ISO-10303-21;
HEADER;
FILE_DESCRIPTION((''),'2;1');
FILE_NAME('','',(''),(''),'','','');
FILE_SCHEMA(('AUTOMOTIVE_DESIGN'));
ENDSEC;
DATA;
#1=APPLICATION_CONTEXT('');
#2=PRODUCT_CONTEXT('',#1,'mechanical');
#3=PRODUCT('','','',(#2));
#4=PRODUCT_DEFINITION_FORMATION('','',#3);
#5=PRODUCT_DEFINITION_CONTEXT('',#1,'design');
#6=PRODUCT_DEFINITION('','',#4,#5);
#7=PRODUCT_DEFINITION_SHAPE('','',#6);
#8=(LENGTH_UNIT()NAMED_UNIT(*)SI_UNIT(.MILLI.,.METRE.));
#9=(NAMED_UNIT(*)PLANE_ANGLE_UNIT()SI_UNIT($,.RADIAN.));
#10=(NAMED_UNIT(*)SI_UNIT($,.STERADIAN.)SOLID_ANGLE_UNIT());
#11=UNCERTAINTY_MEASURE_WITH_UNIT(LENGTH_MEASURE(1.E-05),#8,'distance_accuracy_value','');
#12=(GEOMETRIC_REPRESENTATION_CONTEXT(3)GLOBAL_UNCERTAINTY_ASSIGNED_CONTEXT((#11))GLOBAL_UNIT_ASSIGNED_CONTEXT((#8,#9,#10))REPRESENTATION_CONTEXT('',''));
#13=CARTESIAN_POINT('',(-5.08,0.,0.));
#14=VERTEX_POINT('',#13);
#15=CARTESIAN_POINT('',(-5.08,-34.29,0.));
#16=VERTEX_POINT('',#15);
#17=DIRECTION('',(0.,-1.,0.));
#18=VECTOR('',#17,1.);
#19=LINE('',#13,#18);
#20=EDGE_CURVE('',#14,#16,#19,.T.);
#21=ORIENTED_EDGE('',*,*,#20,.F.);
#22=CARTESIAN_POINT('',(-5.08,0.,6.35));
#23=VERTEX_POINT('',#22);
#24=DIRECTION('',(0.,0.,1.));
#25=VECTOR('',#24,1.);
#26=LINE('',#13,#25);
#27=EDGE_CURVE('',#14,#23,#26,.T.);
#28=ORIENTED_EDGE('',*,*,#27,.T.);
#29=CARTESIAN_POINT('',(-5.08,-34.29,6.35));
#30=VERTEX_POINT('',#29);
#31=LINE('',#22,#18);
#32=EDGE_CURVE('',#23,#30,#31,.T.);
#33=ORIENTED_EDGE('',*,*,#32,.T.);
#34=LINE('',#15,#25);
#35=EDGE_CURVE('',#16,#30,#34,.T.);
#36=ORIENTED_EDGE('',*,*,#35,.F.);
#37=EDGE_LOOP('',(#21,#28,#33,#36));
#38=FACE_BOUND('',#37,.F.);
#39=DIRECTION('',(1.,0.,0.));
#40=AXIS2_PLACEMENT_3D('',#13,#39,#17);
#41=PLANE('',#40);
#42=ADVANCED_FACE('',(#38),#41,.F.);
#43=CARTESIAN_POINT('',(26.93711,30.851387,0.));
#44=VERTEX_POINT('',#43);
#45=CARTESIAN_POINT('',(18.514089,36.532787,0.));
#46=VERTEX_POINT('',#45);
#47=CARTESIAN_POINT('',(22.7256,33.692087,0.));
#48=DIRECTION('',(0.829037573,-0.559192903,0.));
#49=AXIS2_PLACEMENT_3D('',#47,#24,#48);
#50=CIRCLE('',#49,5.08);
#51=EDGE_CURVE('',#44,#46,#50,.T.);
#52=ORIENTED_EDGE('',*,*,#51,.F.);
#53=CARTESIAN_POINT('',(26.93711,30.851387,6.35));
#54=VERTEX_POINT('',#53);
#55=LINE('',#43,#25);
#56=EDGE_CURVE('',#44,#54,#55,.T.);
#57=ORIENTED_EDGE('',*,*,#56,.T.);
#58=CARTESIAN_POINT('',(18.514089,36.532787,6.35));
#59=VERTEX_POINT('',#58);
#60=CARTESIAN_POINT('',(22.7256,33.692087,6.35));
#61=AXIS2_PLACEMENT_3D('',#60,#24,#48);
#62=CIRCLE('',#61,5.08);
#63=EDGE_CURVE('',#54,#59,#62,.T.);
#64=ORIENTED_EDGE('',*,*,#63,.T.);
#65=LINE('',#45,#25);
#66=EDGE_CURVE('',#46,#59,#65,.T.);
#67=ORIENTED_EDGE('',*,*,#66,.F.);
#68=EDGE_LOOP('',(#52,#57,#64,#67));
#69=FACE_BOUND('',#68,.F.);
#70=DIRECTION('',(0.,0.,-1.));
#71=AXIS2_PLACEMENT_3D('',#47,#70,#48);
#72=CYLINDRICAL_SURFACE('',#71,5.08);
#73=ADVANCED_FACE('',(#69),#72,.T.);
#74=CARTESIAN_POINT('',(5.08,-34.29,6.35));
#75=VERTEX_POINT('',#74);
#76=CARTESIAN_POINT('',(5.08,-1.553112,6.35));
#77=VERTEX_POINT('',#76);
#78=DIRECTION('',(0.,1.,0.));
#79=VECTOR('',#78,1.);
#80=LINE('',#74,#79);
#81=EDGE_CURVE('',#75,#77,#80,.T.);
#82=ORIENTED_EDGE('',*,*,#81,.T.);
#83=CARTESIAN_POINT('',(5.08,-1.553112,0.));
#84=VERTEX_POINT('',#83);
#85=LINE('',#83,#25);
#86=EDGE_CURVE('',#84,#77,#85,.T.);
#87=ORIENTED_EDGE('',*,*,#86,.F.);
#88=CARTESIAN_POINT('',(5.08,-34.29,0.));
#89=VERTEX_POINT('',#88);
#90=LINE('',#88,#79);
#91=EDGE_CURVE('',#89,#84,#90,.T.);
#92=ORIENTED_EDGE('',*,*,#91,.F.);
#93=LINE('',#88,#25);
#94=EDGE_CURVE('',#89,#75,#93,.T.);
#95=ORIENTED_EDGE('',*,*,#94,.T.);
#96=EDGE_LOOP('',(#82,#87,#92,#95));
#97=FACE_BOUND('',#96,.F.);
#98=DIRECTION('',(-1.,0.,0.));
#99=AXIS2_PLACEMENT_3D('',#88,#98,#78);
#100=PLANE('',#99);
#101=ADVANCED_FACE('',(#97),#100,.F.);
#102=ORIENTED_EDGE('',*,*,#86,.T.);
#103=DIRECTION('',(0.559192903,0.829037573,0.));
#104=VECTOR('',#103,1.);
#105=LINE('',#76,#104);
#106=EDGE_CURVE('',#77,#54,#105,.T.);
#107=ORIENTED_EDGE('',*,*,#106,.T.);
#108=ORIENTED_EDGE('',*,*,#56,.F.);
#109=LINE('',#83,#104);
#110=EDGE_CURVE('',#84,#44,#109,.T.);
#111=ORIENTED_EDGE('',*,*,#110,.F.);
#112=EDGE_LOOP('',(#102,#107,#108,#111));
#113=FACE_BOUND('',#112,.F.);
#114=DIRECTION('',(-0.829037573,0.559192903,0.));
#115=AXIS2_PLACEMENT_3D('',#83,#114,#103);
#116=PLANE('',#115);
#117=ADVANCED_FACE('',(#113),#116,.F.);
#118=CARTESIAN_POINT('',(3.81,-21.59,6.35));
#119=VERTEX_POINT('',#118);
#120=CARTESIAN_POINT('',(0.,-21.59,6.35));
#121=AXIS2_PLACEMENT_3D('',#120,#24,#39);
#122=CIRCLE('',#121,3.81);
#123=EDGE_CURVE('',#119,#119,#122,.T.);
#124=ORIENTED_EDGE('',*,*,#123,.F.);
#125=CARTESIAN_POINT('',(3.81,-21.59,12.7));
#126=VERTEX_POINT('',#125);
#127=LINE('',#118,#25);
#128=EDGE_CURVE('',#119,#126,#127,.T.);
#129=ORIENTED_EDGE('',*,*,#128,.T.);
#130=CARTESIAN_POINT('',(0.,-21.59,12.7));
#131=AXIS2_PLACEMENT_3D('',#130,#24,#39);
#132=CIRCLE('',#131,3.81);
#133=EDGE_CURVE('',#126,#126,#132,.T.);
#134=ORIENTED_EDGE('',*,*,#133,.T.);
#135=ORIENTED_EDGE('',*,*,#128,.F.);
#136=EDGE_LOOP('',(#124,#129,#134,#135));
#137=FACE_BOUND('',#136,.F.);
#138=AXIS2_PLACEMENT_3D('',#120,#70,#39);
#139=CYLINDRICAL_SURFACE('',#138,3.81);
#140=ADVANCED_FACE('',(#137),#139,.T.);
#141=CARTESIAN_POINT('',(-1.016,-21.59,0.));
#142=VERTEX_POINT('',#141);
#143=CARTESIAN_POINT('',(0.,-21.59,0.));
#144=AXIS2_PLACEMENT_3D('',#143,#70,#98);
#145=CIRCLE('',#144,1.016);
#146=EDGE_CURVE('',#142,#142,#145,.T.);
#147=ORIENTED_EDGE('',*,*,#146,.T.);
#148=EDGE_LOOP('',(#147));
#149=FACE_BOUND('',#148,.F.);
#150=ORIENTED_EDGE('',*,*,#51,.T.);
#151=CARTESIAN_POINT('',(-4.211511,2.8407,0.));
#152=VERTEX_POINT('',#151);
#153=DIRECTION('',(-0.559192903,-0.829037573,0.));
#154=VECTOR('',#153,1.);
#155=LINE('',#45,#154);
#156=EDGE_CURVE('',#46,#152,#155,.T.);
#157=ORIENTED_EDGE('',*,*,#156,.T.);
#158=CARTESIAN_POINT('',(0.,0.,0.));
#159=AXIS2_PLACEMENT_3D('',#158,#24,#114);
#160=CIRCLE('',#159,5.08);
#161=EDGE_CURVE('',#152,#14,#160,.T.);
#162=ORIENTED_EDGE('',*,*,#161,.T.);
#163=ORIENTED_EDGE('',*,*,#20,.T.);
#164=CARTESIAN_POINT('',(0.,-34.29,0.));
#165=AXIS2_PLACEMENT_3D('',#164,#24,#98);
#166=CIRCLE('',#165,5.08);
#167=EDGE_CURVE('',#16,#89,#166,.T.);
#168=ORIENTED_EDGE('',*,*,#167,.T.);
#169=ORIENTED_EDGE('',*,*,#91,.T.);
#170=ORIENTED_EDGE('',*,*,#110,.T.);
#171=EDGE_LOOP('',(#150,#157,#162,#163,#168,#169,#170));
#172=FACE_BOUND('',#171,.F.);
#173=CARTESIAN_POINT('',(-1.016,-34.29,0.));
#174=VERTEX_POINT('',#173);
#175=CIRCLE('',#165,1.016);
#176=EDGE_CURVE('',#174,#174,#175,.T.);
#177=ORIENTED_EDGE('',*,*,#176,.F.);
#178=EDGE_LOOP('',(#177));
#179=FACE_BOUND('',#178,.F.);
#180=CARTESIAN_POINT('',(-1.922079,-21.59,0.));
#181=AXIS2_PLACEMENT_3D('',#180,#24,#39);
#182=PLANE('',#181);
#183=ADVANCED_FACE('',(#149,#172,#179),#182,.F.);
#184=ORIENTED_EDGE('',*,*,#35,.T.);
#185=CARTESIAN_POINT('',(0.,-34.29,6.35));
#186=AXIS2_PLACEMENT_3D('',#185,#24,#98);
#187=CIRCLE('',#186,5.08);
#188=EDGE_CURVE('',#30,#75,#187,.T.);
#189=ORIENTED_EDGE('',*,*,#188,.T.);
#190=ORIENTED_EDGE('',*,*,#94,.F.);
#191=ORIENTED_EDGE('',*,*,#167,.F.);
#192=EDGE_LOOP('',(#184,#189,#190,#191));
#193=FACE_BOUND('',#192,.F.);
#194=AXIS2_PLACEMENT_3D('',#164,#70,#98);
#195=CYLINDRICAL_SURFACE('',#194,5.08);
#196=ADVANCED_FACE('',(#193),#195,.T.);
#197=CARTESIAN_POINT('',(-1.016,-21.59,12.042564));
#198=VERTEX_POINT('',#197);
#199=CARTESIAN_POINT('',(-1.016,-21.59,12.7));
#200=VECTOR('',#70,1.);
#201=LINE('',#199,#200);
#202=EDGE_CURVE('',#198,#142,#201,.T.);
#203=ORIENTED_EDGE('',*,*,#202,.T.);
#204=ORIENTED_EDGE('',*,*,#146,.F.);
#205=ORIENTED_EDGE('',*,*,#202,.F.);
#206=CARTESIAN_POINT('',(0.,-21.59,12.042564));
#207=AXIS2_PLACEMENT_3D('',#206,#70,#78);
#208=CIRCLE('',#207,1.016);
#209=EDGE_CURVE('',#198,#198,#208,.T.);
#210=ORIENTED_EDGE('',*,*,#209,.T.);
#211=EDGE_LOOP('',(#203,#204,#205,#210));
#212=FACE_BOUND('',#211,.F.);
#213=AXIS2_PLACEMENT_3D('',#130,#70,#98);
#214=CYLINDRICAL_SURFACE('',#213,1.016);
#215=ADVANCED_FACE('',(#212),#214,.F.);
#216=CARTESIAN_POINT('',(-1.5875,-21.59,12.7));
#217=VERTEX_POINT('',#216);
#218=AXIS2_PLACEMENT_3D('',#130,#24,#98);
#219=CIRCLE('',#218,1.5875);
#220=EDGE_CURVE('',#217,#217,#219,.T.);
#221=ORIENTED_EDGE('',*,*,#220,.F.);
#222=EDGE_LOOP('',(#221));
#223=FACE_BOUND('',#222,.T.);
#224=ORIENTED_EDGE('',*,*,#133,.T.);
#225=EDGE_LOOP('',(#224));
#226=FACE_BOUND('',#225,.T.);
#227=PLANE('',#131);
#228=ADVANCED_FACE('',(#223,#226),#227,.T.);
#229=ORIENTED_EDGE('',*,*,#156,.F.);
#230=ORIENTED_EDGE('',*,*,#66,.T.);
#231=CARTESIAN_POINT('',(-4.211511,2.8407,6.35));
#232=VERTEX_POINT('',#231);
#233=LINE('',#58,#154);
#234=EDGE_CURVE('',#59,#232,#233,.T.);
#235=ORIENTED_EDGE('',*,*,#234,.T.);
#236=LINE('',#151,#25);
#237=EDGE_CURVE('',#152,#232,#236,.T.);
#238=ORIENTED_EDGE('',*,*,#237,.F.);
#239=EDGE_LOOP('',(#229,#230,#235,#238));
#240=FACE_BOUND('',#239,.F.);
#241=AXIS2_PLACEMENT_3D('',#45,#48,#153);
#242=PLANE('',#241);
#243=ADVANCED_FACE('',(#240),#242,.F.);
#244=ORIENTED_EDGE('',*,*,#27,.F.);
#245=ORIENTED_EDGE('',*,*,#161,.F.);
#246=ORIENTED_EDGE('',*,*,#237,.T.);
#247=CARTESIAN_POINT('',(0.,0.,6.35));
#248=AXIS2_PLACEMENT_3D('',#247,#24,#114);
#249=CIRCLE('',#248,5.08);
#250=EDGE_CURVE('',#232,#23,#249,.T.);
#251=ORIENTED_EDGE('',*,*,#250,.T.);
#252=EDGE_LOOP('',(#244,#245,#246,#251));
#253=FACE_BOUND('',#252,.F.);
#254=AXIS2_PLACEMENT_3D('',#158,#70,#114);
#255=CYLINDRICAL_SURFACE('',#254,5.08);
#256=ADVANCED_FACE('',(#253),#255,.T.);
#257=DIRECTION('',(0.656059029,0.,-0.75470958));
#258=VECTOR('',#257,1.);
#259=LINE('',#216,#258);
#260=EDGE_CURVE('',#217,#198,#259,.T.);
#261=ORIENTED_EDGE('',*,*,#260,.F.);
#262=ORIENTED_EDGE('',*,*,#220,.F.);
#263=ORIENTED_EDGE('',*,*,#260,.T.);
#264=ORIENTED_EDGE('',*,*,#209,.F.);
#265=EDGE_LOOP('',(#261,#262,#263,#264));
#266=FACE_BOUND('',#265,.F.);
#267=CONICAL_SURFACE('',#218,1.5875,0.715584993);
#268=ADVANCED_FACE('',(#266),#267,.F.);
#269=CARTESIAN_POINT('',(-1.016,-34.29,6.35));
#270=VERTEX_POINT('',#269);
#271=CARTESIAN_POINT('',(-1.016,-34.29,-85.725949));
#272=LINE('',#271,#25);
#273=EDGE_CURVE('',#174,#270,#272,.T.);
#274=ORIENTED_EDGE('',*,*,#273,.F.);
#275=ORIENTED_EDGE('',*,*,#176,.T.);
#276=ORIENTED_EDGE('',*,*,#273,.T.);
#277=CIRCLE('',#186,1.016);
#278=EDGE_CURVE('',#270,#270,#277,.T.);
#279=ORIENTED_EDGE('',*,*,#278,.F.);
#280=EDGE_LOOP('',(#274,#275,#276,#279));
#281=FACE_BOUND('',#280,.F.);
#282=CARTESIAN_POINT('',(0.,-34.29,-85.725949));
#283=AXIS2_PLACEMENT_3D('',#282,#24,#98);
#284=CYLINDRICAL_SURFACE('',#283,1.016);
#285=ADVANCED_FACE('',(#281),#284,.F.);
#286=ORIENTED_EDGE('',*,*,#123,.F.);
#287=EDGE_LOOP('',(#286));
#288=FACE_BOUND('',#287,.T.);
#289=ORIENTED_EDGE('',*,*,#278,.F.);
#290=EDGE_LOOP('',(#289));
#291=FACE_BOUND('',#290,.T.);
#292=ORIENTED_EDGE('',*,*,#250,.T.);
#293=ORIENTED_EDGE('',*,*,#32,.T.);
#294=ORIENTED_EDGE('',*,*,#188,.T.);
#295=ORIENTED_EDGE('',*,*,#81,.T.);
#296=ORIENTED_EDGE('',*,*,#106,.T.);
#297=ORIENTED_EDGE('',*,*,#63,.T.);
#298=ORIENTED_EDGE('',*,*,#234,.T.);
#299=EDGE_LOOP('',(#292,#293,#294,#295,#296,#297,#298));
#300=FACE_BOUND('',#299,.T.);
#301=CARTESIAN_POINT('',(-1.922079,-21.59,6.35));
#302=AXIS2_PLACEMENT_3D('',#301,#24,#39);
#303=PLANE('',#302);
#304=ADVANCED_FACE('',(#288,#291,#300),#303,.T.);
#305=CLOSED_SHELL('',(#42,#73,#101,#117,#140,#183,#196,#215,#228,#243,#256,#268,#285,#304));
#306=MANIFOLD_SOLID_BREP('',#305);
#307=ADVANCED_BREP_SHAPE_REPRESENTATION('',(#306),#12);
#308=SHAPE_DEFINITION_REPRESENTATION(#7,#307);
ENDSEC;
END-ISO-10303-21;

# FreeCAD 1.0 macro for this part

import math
import FreeCAD as App
import Part
import Sketcher
Q = App.Units.Quantity

doc = App.newDocument("Part")
body = doc.addObject("PartDesign::Body", "Body")

# Sketch on XY plane
sketch1 = doc.addObject("Sketcher::SketchObject", "Sketch")
body.addObject(sketch1)
sketch1.AttachmentSupport = (doc.XY_Plane, [""])
sketch1.MapMode = "FlatFace"
sketch1.addGeometry([
    Part.ArcOfCircle(Part.Circle(App.Vector(0, 0, 0), App.Vector(0, 0, 1), 5.08), math.radians(146), math.radians(180)),  # 0
    Part.LineSegment(App.Vector(-5.08, 0, 0), App.Vector(-5.08, -34.29, 0)),  # 1
    Part.ArcOfCircle(Part.Circle(App.Vector(0, -34.29, 0), App.Vector(0, 0, 1), 5.08), math.radians(180), math.radians(360)),  # 2
    Part.LineSegment(App.Vector(5.08, -34.29, 0), App.Vector(5.08, -1.553112, 0)),  # 3
    Part.LineSegment(App.Vector(5.08, -1.553112, 0), App.Vector(26.93711, 30.851387, 0)),  # 4
    Part.ArcOfCircle(Part.Circle(App.Vector(22.7256, 33.692087, 0), App.Vector(0, 0, 1), 5.08), math.radians(-34), math.radians(146)),  # 5
    Part.LineSegment(App.Vector(18.514089, 36.532787, 0), App.Vector(-4.211511, 2.8407, 0)),  # 6
], False)
sketch1.addConstraint([
    Sketcher.Constraint("Tangent", 0, 2, 1, 1),
    Sketcher.Constraint("Tangent", 1, 2, 2, 1),
    Sketcher.Constraint("Tangent", 2, 2, 3, 1),
    Sketcher.Constraint("Coincident", 3, 2, 4, 1),
    Sketcher.Constraint("Tangent", 4, 2, 5, 1),
    Sketcher.Constraint("Tangent", 5, 2, 6, 1),
    Sketcher.Constraint("Tangent", 6, 2, 0, 1),
    Sketcher.Constraint("Vertical", 1),
    Sketcher.Constraint("Vertical", 3),
    Sketcher.Constraint("Coincident", 0, 3, -1, 1),
    Sketcher.Constraint("Equal", 0, 2),
    Sketcher.Constraint("Equal", 2, 5),
    Sketcher.Constraint("Parallel", 4, 6),
    Sketcher.Constraint("Radius", 0, Q("0.2 in")),
    Sketcher.Constraint("Angle", 4, Q("56 deg")),
    Sketcher.Constraint("Distance", 6, Q("1.6 in")),
    Sketcher.Constraint("DistanceY", 1, 2, 1, 1, Q("1.35 in")),
])
pad1 = doc.addObject("PartDesign::Pad", "Pad")
body.addObject(pad1)
pad1.Profile = sketch1
pad1.Length = Q("0.25 in")

# Sketch on XY plane
sketch2 = doc.addObject("Sketcher::SketchObject", "Sketch001")
body.addObject(sketch2)
sketch2.AttachmentSupport = (doc.XY_Plane, [""])
sketch2.MapMode = "FlatFace"
sketch2.AttachmentOffset = App.Placement(App.Vector(0, 0, 0.25 * 25.4), App.Rotation())
sketch2.addGeometry(Part.Circle(App.Vector(0, -21.59, 0), App.Vector(0, 0, 1), 3.81), False)
sketch2.addConstraint([
    Sketcher.Constraint("PointOnObject", 0, 3, -2),
    Sketcher.Constraint("Diameter", 0, Q("0.3 in")),
    Sketcher.Constraint("DistanceY", 0, 3, -1, 1, Q("0.85 in")),
])
pad2 = doc.addObject("PartDesign::Pad", "Pad001")
body.addObject(pad2)
pad2.Profile = sketch2
pad2.Length = Q("0.25 in")

# Sketch on XY plane
sketch3 = doc.addObject("Sketcher::SketchObject", "Sketch002")
body.addObject(sketch3)
sketch3.AttachmentSupport = (doc.XY_Plane, [""])
sketch3.MapMode = "FlatFace"
sketch3.AttachmentOffset = App.Placement(App.Vector(0, 0, 0.5 * 25.4), App.Rotation())
sketch3.addGeometry(Part.Circle(App.Vector(0, -21.59, 0), App.Vector(0, 0, 1), 1.016), False)
sketch3.addConstraint([
    Sketcher.Constraint("PointOnObject", 0, 3, -2),
    Sketcher.Constraint("Diameter", 0, Q("0.08 in")),
    Sketcher.Constraint("DistanceY", 0, 3, -1, 1, Q("0.85 in")),
])
doc.recompute()
hole = doc.addObject("PartDesign::Hole", "Hole")
body.addObject(hole)
hole.Profile = sketch3
hole.ThreadType = "None"
hole.Diameter = Q("0.08 in")
hole.DepthType = "ThroughAll"
hole.HoleCutType = "Countersink"
hole.HoleCutDiameter = Q("0.125 in")
hole.HoleCutCountersinkAngle = 82

# Sketch on XY plane
sketch4 = doc.addObject("Sketcher::SketchObject", "Sketch003")
body.addObject(sketch4)
sketch4.AttachmentSupport = (doc.XY_Plane, [""])
sketch4.MapMode = "FlatFace"
sketch4.addGeometry(Part.Circle(App.Vector(0, -34.29, 0), App.Vector(0, 0, 1), 1.016), False)
sketch4.addConstraint([
    Sketcher.Constraint("PointOnObject", 0, 3, -2),
    Sketcher.Constraint("Diameter", 0, Q("0.08 in")),
    Sketcher.Constraint("DistanceY", 0, 3, -1, 1, Q("1.35 in")),
])
doc.recompute()
hole2 = doc.addObject("PartDesign::Hole", "Hole001")
body.addObject(hole2)
hole2.Profile = sketch4
hole2.ThreadType = "None"
hole2.Diameter = Q("0.08 in")
hole2.DepthType = "ThroughAll"
hole2.Reversed = True

doc.recompute()
